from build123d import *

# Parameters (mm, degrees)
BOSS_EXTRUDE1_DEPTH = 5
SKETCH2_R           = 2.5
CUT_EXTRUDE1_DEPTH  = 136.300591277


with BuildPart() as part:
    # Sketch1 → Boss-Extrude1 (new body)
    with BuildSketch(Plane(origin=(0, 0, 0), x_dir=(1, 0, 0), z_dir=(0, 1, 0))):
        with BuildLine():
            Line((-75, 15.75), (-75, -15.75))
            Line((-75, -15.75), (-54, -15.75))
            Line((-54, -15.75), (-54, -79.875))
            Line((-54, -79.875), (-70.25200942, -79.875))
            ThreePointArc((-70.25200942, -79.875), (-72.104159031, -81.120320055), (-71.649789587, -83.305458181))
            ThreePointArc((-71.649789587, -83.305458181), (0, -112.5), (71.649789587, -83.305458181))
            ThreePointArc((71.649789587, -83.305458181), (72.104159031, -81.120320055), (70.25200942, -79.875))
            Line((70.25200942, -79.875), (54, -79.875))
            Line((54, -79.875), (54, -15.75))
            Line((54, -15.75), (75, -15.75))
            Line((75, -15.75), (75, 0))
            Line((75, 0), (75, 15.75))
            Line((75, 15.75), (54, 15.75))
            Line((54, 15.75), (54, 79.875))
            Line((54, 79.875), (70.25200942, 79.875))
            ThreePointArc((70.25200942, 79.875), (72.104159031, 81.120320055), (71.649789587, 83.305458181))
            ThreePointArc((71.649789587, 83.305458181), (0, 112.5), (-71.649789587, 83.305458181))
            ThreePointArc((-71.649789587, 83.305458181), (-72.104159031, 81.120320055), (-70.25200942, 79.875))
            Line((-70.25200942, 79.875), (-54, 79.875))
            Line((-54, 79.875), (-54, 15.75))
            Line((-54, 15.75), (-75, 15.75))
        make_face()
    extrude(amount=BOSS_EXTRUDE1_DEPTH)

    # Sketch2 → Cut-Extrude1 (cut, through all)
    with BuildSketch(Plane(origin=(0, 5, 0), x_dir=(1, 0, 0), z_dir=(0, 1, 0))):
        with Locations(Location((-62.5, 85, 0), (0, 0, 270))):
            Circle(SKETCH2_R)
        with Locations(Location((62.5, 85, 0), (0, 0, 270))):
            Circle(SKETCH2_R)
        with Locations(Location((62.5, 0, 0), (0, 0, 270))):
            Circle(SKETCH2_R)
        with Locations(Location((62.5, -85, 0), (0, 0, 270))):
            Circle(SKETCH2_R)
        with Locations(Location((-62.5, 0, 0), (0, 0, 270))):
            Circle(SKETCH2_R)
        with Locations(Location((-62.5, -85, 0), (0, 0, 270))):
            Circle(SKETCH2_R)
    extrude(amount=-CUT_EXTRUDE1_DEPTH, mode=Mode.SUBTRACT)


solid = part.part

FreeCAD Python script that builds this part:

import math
import FreeCAD as App
import Part
import Sketcher
from FreeCAD import Vector
Q = App.Units.Quantity

doc = App.newDocument("Part")
body = doc.addObject("PartDesign::Body", "Body")

# Sketch on XZ plane
sketch1 = body.newObject("Sketcher::SketchObject", "Sketch")
sketch1.AttachmentSupport = (doc.getObject("XZ_Plane"), [""])
sketch1.MapMode = "FlatFace"
sketch1.addGeometry([
    Part.LineSegment(Vector(-75, -15.8, 0), Vector(-75, 15.8, 0)),  # 0
    Part.LineSegment(Vector(-75, 15.8, 0), Vector(-54, 15.8, 0)),  # 1
    Part.LineSegment(Vector(-54, 15.8, 0), Vector(-54, 79.9, 0)),  # 2
    Part.LineSegment(Vector(-54, 79.9, 0), Vector(-70.3, 79.9, 0)),  # 3
    Part.ArcOfCircle(Part.Circle(Vector(-70.3, 81.9, 0), Vector(0, 0, 1), 2), math.radians(134), math.radians(270)),  # 4
    Part.ArcOfCircle(Part.Circle(Vector(0, 10, 0), Vector(0, 0, 1), 102.5), math.radians(46), math.radians(134)),  # 5
    Part.ArcOfCircle(Part.Circle(Vector(70.3, 81.9, 0), Vector(0, 0, 1), 2), math.radians(-90), math.radians(46)),  # 6
    Part.LineSegment(Vector(70.3, 79.9, 0), Vector(54, 79.9, 0)),  # 7
    Part.LineSegment(Vector(54, 79.9, 0), Vector(54, 15.8, 0)),  # 8
    Part.LineSegment(Vector(54, 15.8, 0), Vector(75, 15.8, 0)),  # 9
    Part.LineSegment(Vector(75, 15.8, 0), Vector(75, -15.8, 0)),  # 10
    Part.LineSegment(Vector(75, -15.8, 0), Vector(54, -15.8, 0)),  # 11
    Part.LineSegment(Vector(54, -15.8, 0), Vector(54, -79.9, 0)),  # 12
    Part.LineSegment(Vector(54, -79.9, 0), Vector(70.3, -79.9, 0)),  # 13
    Part.ArcOfCircle(Part.Circle(Vector(70.3, -81.9, 0), Vector(0, 0, 1), 2), math.radians(-46), math.radians(90)),  # 14
    Part.ArcOfCircle(Part.Circle(Vector(0, -10, 0), Vector(0, 0, 1), 102.5), math.radians(-134), math.radians(-46)),  # 15
    Part.ArcOfCircle(Part.Circle(Vector(-70.3, -81.9, 0), Vector(0, 0, 1), 2), math.radians(90), math.radians(226)),  # 16
    Part.LineSegment(Vector(-70.3, -79.9, 0), Vector(-54, -79.9, 0)),  # 17
    Part.LineSegment(Vector(-54, -79.9, 0), Vector(-54, -15.8, 0)),  # 18
    Part.LineSegment(Vector(-54, -15.8, 0), Vector(-75, -15.8, 0)),  # 19
], False)
sketch1.addConstraint([
    Sketcher.Constraint("Coincident", 0, 2, 1, 1),
    Sketcher.Constraint("Coincident", 1, 2, 2, 1),
    Sketcher.Constraint("Coincident", 2, 2, 3, 1),
    Sketcher.Constraint("Tangent", 3, 2, 4, 2),
    Sketcher.Constraint("Tangent", 4, 1, 5, 2),
    Sketcher.Constraint("Tangent", 5, 1, 6, 2),
    Sketcher.Constraint("Tangent", 6, 1, 7, 1),
    Sketcher.Constraint("Coincident", 7, 2, 8, 1),
    Sketcher.Constraint("Coincident", 8, 2, 9, 1),
    Sketcher.Constraint("Coincident", 9, 2, 10, 1),
    Sketcher.Constraint("Coincident", 10, 2, 11, 1),
    Sketcher.Constraint("Coincident", 11, 2, 12, 1),
    Sketcher.Constraint("Coincident", 12, 2, 13, 1),
    Sketcher.Constraint("Tangent", 13, 2, 14, 2),
    Sketcher.Constraint("Tangent", 14, 1, 15, 2),
    Sketcher.Constraint("Tangent", 15, 1, 16, 2),
    Sketcher.Constraint("Tangent", 16, 1, 17, 1),
    Sketcher.Constraint("Coincident", 17, 2, 18, 1),
    Sketcher.Constraint("Coincident", 18, 2, 19, 1),
    Sketcher.Constraint("Coincident", 19, 2, 0, 1),
    Sketcher.Constraint("Vertical", 0),
    Sketcher.Constraint("Horizontal", 1),
    Sketcher.Constraint("Vertical", 2),
    Sketcher.Constraint("Horizontal", 3),
    Sketcher.Constraint("Horizontal", 7),
    Sketcher.Constraint("Vertical", 8),
    Sketcher.Constraint("Horizontal", 9),
    Sketcher.Constraint("Vertical", 10),
    Sketcher.Constraint("Horizontal", 11),
    Sketcher.Constraint("Vertical", 12),
    Sketcher.Constraint("Horizontal", 13),
    Sketcher.Constraint("Horizontal", 17),
    Sketcher.Constraint("Vertical", 18),
    Sketcher.Constraint("Horizontal", 19),
    Sketcher.Constraint("Equal", 4, 6),
    Sketcher.Constraint("Equal", 6, 14),
    Sketcher.Constraint("Equal", 5, 15),
    Sketcher.Constraint("Equal", 14, 16),
    Sketcher.Constraint("Symmetric", 4, 3, 14, 3, -1, 1),
    Sketcher.Constraint("Symmetric", 6, 3, 16, 3, -1, 1),
    Sketcher.Constraint("Symmetric", 0, 2, 10, 2, -1, 1),
    Sketcher.Constraint("Symmetric", 8, 2, 18, 2, -1, 1),
    Sketcher.Constraint("Symmetric", 4, 3, 6, 3, -2),
    Sketcher.Constraint("Symmetric", 1, 2, 8, 2, -2),
    Sketcher.Constraint("Vertical", 8, 2, 11, 2),
    Sketcher.Constraint("Radius", 4, Q("2 mm")),
    Sketcher.Constraint("DistanceX", 1, 1, 1, 2, Q("21 mm")),
    Sketcher.Constraint("DistanceY", 0, 1, 0, 2, Q("31.5 mm")),
    Sketcher.Constraint("DistanceX", 0, 2, -1, 1, Q("75 mm")),
    Sketcher.Constraint("DistanceY", 2, 1, 2, 2, Q("64.125 mm")),
    Sketcher.Constraint("Radius", 5, Q("102.519397 mm")),
    Sketcher.Constraint("DistanceX", 3, 2, 3, 1, Q("16.252009 mm")),
])
pad1 = body.newObject("PartDesign::Pad", "Pad")
pad1.Profile = sketch1
pad1.Length = 5
pad1.Reversed = True

# Sketch on XZ plane
sketch2 = body.newObject("Sketcher::SketchObject", "Sketch001")
sketch2.AttachmentSupport = (doc.getObject("XZ_Plane"), [""])
sketch2.MapMode = "FlatFace"
sketch2.AttachmentOffset = App.Placement(Vector(0, 0, -5), App.Rotation())
sketch2.addGeometry([
    Part.Circle(Vector(-62.5, -85, 0), Vector(0, 0, 1), 2.5),  # 0
    Part.Circle(Vector(62.5, -85, 0), Vector(0, 0, 1), 2.5),  # 1
    Part.Circle(Vector(62.5, 0, 0), Vector(0, 0, 1), 2.5),  # 2
    Part.Circle(Vector(62.5, 85, 0), Vector(0, 0, 1), 2.5),  # 3
    Part.Circle(Vector(-62.5, 0, 0), Vector(0, 0, 1), 2.5),  # 4
    Part.Circle(Vector(-62.5, 85, 0), Vector(0, 0, 1), 2.5),  # 5
], False)
sketch2.addConstraint([
    Sketcher.Constraint("Equal", 0, 1),
    Sketcher.Constraint("Equal", 1, 2),
    Sketcher.Constraint("Equal", 2, 3),
    Sketcher.Constraint("Equal", 3, 4),
    Sketcher.Constraint("Equal", 4, 5),
    Sketcher.Constraint("Symmetric", 0, 3, 3, 3, -1, 1),
    Sketcher.Constraint("Symmetric", 2, 3, 4, 3, -1, 1),
    Sketcher.Constraint("Symmetric", 1, 3, 5, 3, -1, 1),
    Sketcher.Constraint("Symmetric", 0, 3, 1, 3, -2),
    Sketcher.Constraint("PointOnObject", 2, 3, -1),
    Sketcher.Constraint("Vertical", 1, 3, 2, 3),
    Sketcher.Constraint("Diameter", 0, Q("5 mm")),
    Sketcher.Constraint("DistanceY", 0, 3, -1, 1, Q("85 mm")),
    Sketcher.Constraint("DistanceX", 0, 3, 1, 3, Q("125 mm")),
])
pocket1 = body.newObject("PartDesign::Pocket", "Pocket")
pocket1.Profile = sketch2
pocket1.Type = "ThroughAll"
pocket1.Reversed = True

doc.recompute()
